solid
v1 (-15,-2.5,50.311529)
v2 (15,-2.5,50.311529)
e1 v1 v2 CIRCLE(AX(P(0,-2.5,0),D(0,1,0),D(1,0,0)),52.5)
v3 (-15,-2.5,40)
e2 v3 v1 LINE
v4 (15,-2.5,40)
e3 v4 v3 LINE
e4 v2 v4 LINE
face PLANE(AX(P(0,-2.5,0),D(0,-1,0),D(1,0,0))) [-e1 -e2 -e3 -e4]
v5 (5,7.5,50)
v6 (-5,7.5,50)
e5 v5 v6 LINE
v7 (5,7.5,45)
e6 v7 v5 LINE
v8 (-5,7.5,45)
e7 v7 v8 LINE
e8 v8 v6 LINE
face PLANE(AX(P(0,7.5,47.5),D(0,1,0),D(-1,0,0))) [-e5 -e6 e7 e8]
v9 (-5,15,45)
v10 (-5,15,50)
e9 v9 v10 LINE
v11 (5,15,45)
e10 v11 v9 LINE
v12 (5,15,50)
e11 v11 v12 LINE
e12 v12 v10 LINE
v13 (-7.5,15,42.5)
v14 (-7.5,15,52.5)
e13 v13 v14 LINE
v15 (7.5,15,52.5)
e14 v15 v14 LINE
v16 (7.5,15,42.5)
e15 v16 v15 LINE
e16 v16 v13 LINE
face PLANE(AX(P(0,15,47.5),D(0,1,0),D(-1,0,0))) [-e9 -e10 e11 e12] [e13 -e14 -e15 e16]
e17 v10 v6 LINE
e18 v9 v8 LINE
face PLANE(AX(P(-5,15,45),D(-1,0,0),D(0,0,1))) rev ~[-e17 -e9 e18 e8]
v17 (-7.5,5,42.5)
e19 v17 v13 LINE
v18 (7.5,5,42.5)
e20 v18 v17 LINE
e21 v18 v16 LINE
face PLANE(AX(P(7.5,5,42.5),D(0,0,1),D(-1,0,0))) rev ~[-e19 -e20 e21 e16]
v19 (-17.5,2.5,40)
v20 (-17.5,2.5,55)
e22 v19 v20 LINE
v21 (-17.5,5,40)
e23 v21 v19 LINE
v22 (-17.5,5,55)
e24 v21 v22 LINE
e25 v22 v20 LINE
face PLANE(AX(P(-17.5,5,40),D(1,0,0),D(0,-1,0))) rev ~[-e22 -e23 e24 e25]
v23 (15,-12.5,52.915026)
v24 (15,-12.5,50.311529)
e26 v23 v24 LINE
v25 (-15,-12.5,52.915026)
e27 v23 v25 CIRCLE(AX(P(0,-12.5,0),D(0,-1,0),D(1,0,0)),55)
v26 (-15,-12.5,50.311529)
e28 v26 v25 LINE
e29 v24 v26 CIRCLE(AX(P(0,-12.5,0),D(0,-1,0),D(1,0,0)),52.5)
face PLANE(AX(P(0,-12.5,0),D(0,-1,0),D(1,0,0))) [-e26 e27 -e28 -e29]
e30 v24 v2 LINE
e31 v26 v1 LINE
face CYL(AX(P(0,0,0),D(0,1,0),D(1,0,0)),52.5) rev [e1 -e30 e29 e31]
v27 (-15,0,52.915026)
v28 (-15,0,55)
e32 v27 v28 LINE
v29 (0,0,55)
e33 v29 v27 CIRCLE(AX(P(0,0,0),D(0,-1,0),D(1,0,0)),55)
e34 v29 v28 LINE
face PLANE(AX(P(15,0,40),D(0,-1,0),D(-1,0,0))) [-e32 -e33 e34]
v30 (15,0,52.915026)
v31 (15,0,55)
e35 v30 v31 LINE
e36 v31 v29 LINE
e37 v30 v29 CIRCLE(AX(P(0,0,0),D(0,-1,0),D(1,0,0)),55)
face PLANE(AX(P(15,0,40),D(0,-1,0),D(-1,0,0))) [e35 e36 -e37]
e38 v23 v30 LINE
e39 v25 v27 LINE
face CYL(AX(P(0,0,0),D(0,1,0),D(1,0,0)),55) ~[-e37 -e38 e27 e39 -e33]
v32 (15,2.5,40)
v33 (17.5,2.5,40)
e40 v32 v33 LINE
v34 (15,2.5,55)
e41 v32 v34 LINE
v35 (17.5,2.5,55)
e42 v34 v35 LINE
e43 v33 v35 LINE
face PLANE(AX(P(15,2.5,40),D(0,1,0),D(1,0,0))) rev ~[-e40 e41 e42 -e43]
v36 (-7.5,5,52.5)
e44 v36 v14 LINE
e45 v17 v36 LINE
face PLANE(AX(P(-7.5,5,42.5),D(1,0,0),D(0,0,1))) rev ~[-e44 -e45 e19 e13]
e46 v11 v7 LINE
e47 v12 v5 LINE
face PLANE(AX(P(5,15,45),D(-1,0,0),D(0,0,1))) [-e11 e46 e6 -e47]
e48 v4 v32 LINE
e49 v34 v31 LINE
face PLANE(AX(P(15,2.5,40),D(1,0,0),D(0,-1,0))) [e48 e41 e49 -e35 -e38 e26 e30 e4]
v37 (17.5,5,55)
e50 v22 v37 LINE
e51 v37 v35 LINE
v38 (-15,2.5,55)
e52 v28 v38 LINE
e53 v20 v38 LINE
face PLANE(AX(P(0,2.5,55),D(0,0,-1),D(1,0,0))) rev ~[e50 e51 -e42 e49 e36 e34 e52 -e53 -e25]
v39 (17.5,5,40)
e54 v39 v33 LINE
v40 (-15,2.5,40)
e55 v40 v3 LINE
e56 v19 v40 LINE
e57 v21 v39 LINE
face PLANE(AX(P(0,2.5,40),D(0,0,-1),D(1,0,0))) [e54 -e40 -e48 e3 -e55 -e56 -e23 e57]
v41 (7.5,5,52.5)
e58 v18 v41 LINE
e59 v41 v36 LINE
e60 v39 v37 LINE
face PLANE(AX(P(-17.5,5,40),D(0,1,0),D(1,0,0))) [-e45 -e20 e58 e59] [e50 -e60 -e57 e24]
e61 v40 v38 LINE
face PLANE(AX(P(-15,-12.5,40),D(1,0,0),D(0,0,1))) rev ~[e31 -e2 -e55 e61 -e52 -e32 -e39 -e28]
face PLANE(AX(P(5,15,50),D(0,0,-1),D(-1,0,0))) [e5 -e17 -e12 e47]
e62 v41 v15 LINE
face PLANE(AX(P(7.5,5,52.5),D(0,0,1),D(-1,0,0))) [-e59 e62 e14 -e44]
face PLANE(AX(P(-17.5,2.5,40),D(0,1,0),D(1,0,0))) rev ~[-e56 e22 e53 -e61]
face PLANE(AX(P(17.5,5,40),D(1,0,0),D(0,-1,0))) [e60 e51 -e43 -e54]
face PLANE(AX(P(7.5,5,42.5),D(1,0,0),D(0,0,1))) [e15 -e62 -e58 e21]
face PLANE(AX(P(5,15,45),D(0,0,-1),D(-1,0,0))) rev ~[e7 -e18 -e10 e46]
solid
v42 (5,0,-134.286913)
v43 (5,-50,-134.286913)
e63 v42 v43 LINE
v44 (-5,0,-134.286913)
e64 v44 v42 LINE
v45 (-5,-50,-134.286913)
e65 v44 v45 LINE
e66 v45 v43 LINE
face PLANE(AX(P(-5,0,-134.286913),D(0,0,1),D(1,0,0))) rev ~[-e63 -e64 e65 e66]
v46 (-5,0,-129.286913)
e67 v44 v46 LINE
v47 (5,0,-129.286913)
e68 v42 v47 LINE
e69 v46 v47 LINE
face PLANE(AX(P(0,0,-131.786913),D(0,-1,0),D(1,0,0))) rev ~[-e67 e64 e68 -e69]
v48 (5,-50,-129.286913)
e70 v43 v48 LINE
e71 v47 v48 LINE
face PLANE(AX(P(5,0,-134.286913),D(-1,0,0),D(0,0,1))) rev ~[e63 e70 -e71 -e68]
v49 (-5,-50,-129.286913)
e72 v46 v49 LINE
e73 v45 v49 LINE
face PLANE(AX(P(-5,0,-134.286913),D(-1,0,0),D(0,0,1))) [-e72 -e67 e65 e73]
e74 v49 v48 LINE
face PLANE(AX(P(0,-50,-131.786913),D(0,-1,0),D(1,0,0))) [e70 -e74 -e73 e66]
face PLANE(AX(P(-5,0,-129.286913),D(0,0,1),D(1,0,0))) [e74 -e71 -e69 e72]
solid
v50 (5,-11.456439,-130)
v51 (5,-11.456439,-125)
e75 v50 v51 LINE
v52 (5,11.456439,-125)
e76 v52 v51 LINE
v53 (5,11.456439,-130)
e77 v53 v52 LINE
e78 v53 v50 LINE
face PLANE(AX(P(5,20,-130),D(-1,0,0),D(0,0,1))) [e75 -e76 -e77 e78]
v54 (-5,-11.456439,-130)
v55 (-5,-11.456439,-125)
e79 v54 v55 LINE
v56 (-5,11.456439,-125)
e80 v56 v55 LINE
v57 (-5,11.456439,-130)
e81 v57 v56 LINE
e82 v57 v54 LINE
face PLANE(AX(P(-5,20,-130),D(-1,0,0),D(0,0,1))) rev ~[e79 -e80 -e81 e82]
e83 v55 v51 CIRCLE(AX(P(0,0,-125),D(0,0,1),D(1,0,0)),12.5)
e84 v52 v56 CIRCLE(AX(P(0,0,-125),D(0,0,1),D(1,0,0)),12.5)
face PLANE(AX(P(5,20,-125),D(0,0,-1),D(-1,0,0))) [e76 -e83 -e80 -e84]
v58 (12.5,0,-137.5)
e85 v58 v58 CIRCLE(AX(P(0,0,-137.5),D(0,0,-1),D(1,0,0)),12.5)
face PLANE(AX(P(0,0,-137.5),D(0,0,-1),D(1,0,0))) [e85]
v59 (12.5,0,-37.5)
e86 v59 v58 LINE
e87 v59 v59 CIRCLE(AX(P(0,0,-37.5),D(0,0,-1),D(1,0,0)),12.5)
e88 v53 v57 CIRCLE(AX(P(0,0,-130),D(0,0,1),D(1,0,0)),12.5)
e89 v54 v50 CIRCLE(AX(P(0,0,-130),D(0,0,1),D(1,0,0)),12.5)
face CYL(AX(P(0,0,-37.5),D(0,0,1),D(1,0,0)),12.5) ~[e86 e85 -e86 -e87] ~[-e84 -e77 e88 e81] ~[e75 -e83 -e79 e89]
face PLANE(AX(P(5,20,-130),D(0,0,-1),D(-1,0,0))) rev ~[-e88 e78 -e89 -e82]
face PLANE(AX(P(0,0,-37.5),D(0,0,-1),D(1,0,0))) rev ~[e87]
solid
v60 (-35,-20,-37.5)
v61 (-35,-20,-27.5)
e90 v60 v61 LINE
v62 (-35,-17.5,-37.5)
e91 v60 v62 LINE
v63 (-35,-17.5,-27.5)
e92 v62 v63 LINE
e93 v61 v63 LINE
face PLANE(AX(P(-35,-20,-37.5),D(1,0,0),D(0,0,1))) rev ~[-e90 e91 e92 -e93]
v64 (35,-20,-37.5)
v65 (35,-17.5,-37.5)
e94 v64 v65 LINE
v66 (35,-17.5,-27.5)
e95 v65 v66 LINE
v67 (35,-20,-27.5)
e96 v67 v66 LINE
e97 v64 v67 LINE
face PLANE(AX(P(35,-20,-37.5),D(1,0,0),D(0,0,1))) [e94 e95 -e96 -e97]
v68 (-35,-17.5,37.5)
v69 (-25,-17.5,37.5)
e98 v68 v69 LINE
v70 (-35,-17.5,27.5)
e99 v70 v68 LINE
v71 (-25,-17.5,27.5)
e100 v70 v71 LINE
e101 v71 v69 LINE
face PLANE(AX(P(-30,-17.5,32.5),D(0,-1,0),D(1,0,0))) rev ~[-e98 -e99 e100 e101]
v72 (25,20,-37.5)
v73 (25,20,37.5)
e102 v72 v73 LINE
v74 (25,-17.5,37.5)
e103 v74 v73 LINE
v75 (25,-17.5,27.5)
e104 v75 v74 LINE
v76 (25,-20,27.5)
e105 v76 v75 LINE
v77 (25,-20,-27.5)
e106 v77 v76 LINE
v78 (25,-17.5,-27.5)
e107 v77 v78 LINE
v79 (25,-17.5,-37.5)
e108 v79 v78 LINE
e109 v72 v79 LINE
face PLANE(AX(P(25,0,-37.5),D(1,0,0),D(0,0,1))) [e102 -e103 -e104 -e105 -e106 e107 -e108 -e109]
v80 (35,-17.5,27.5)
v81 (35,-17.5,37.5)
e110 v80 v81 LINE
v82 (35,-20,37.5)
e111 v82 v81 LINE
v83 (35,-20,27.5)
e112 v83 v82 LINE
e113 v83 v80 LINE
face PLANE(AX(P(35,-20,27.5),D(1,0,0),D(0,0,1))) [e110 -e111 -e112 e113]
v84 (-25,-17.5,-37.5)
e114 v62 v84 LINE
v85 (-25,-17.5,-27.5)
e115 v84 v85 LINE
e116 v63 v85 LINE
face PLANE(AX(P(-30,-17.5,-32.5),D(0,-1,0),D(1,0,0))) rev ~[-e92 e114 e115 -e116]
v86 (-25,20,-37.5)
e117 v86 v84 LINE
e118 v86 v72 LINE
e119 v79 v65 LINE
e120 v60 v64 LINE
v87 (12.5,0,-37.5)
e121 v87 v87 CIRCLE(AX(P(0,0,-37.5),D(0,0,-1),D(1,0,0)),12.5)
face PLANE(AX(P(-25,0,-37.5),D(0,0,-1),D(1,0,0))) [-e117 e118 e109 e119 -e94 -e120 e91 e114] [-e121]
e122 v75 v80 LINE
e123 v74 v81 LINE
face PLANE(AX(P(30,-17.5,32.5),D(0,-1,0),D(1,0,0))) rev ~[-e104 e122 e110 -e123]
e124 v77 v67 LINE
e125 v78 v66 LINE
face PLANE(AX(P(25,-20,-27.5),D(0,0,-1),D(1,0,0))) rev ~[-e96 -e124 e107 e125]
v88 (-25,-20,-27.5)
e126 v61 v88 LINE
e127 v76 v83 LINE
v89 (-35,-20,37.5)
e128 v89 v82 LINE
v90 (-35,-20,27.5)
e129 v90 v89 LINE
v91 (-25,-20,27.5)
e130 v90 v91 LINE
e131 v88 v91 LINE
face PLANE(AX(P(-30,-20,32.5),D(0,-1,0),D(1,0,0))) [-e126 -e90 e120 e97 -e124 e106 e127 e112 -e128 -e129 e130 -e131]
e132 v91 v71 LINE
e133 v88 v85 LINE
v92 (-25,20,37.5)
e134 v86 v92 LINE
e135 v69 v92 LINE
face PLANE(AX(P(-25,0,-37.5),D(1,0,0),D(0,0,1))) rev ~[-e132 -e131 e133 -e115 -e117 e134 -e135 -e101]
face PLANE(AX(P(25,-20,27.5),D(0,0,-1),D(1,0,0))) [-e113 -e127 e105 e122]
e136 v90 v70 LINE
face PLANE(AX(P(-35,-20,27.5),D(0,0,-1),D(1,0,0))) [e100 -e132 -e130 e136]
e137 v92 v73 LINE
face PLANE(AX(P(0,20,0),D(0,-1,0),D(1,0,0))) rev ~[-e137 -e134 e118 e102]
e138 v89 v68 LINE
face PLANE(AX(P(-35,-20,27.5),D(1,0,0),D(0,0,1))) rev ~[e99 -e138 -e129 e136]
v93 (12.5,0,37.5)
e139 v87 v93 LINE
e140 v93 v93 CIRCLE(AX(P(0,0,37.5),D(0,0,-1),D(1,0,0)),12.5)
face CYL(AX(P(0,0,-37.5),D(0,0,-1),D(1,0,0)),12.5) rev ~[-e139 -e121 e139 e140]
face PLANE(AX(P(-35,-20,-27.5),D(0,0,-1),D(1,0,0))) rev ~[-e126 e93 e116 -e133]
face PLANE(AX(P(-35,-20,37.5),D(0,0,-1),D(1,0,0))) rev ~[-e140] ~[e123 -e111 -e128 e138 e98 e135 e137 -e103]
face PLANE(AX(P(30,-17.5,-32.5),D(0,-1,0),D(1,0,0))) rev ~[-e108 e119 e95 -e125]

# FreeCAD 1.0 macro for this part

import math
import FreeCAD as App
import Part
import Sketcher

V = App.Vector
Q = App.Units.Quantity


def faces_at(feature, points):
    """Names of the faces that lie closest to the given points."""
    faces = feature.Shape.Faces
    near = lambda p: min(range(len(faces)), key=lambda i: faces[i].distToShape(Part.Vertex(*p))[0])
    return sorted({f"Face{near(p) + 1}" for p in points})


def add_polygon(sketch, points):
    """Adds a closed chain of lines whose ends are joined by coincident constraints."""
    first, n = sketch.GeometryCount, len(points)
    for a, b in zip(points, points[1:] + points[:1]):
        sketch.addGeometry(Part.LineSegment(App.Vector(*a, 0), App.Vector(*b, 0)), False)
    for i in range(n):
        sketch.addConstraint(Sketcher.Constraint("Coincident", first + i, 2, first + (i + 1) % n, 1))

doc = App.newDocument("Part")
body = doc.addObject("PartDesign::Body", "Body")

# Sketch on XZ plane
sketch1 = body.newObject("Sketcher::SketchObject", "Sketch")
sketch1.AttachmentSupport = (doc.getObject("XZ_Plane"), [""])
sketch1.MapMode = "FlatFace"
sketch1.addGeometry(Part.Circle(V(0, 0, 0), V(0, 0, 1), 55), False)
sketch1.addConstraint([
    Sketcher.Constraint("Coincident", 0, 3, -1, 1),
    Sketcher.Constraint("Diameter", 0, Q("110 mm")),
])
pad1 = body.newObject("PartDesign::Pad", "Pad")
pad1.Profile = sketch1
pad1.Length = 12.5
doc.recompute()

thickness = body.newObject("PartDesign::Thickness", "Thickness")
thickness.Base = (pad1, faces_at(pad1, [(0, -12.5, 0)]))
thickness.Value = 2.5
thickness.Reversed = True
thickness.Join = "Arc"

# Sketch on XZ plane
sketch2 = body.newObject("Sketcher::SketchObject", "Sketch001")
sketch2.AttachmentSupport = (doc.getObject("XZ_Plane"), [""])
sketch2.MapMode = "FlatFace"
sketch2.AttachmentOffset = App.Placement(V(0, 0, 12.5), App.Rotation())
sketch2.addGeometry([
    Part.LineSegment(V(-15, 40, 0), V(-15, 52.915026, 0)),  # 0
    Part.ArcOfCircle(Part.Circle(V(0, 0, 0), V(0, 0, 1), 55), math.radians(105.82662), math.radians(270)),  # 1
    Part.ArcOfCircle(Part.Circle(V(0, 0, 0), V(0, 0, 1), 55), math.radians(-90), math.radians(0)),  # 2
    Part.ArcOfCircle(Part.Circle(V(0, 0, 0), V(0, 0, 1), 55), math.radians(0), math.radians(74.17338)),  # 3
    Part.LineSegment(V(15, 52.915026, 0), V(15, 40, 0)),  # 4
    Part.LineSegment(V(15, 40, 0), V(-15, 40, 0)),  # 5
], False)
sketch2.addConstraint([
    Sketcher.Constraint("Coincident", 0, 2, 1, 1),
    Sketcher.Constraint("Tangent", 1, 2, 2, 1),
    Sketcher.Constraint("Tangent", 2, 2, 3, 1),
    Sketcher.Constraint("Coincident", 3, 2, 4, 1),
    Sketcher.Constraint("Coincident", 4, 2, 5, 1),
    Sketcher.Constraint("Coincident", 5, 2, 0, 1),
    Sketcher.Constraint("Vertical", 0),
    Sketcher.Constraint("Vertical", 4),
    Sketcher.Constraint("Horizontal", 5),
    Sketcher.Constraint("Coincident", 1, 3, -1, 1),
    Sketcher.Constraint("Coincident", 3, 3, -1, 1),
    Sketcher.Constraint("PointOnObject", 1, 2, -2),
    Sketcher.Constraint("PointOnObject", 2, 2, -1),
    Sketcher.Constraint("Horizontal", 0, 2, 3, 2),
    Sketcher.Constraint("Radius", 1, Q("55 mm")),
    Sketcher.Constraint("DistanceX", 5, 2, 5, 1, Q("30 mm")),
    Sketcher.Constraint("DistanceY", -1, 1, 4, 2, Q("40 mm")),
])
pocket1 = body.newObject("PartDesign::Pocket", "Pocket")
pocket1.Profile = sketch2
pocket1.Length = 25

# Sketch on XY plane
sketch3 = body.newObject("Sketcher::SketchObject", "Sketch002")
sketch3.AttachmentSupport = (doc.getObject("XY_Plane"), [""])
sketch3.MapMode = "FlatFace"
sketch3.AttachmentOffset = App.Placement(V(0, 0, 40), App.Rotation())
add_polygon(sketch3, [(15, 0), (-15, 0), (-15, 2.5), (-17.5, 2.5), (-17.5, 5), (17.5, 5), (17.5, 2.5), (15, 2.5)])  # lines 0-7
sketch3.addConstraint([
    Sketcher.Constraint("Horizontal", 0),
    Sketcher.Constraint("Vertical", 1),
    Sketcher.Constraint("Horizontal", 2),
    Sketcher.Constraint("Vertical", 3),
    Sketcher.Constraint("Horizontal", 4),
    Sketcher.Constraint("Vertical", 5),
    Sketcher.Constraint("Horizontal", 6),
    Sketcher.Constraint("Vertical", 7),
    Sketcher.Constraint("Symmetric", 0, 2, 7, 2, -1, 1),
    Sketcher.Constraint("Symmetric", 2, 2, 5, 2, -2),
    Sketcher.Constraint("Equal", 6, 1),
    Sketcher.Constraint("Equal", 1, 3),
    Sketcher.Constraint("DistanceX", 0, 2, 0, 1, Q("30 mm")),
    Sketcher.Constraint("DistanceX", 4, 1, 4, 2, Q("35 mm")),
])
pad2 = body.newObject("PartDesign::Pad", "Pad001")
pad2.Profile = sketch3
pad2.Length = 15

# Sketch on XZ plane
sketch4 = body.newObject("Sketcher::SketchObject", "Sketch003")
sketch4.AttachmentSupport = (doc.getObject("XZ_Plane"), [""])
sketch4.MapMode = "FlatFace"
sketch4.AttachmentOffset = App.Placement(V(0, 0, -5), App.Rotation())
add_polygon(sketch4, [(7.5, 52.5), (7.5, 42.5), (-7.5, 42.5), (-7.5, 52.5)])  # lines 0-3
sketch4.addConstraint([
    Sketcher.Constraint("Vertical", 0),
    Sketcher.Constraint("Horizontal", 1),
    Sketcher.Constraint("Vertical", 2),
    Sketcher.Constraint("Horizontal", 3),
    Sketcher.Constraint("DistanceX", 1, 2, 1, 1, Q("15 mm")),
    Sketcher.Constraint("DistanceY", 0, 2, 0, 1, Q("10 mm")),
    Sketcher.Constraint("DistanceX", -1, 1, 0, 2, Q("7.5 mm")),
    Sketcher.Constraint("DistanceY", -1, 1, 0, 2, Q("42.5 mm")),
])
pad3 = body.newObject("PartDesign::Pad", "Pad002")
pad3.Profile = sketch4
pad3.Length = 10
pad3.Reversed = True

# Sketch on XZ plane
sketch5 = body.newObject("Sketcher::SketchObject", "Sketch004")
sketch5.AttachmentSupport = (doc.getObject("XZ_Plane"), [""])
sketch5.MapMode = "FlatFace"
sketch5.AttachmentOffset = App.Placement(V(0, 0, -15), App.Rotation())
add_polygon(sketch5, [(5, 50), (5, 45), (-5, 45), (-5, 50)])  # lines 0-3
sketch5.addConstraint([
    Sketcher.Constraint("Vertical", 0),
    Sketcher.Constraint("Horizontal", 1),
    Sketcher.Constraint("Vertical", 2),
    Sketcher.Constraint("Horizontal", 3),
    Sketcher.Constraint("DistanceX", 1, 2, 1, 1, Q("10 mm")),
    Sketcher.Constraint("DistanceY", 0, 2, 0, 1, Q("5 mm")),
    Sketcher.Constraint("DistanceX", -1, 1, 0, 2, Q("5 mm")),
    Sketcher.Constraint("DistanceY", -1, 1, 0, 2, Q("45 mm")),
])
pocket2 = body.newObject("PartDesign::Pocket", "Pocket001")
pocket2.Profile = sketch5
pocket2.Length = 7.5
pocket2.Reversed = True
body2 = doc.addObject("PartDesign::Body", "Body001")

# Sketch on XZ plane
sketch6 = body2.newObject("Sketcher::SketchObject", "Sketch005")
sketch6.AttachmentSupport = (doc.getObject("XZ_Plane001"), [""])
sketch6.MapMode = "FlatFace"
add_polygon(sketch6, [(-25, 37.5), (-25, -37.5), (25, -37.5), (25, 37.5)])  # lines 0-3
sketch6.addConstraint([
    Sketcher.Constraint("Vertical", 0),
    Sketcher.Constraint("Horizontal", 1),
    Sketcher.Constraint("Vertical", 2),
    Sketcher.Constraint("Horizontal", 3),
    Sketcher.Constraint("Symmetric", 0, 2, 2, 2, -1, 1),
    Sketcher.Constraint("DistanceX", 1, 1, 1, 2, Q("50 mm")),
    Sketcher.Constraint("DistanceY", 0, 2, 0, 1, Q("75 mm")),
])
pad4 = body2.newObject("PartDesign::Pad", "Pad003")
pad4.Profile = sketch6
pad4.Length = 40
pad4.Midplane = True

# Sketch on XY plane
sketch7 = body2.newObject("Sketcher::SketchObject", "Sketch006")
sketch7.AttachmentSupport = (doc.getObject("XY_Plane001"), [""])
sketch7.MapMode = "FlatFace"
sketch7.AttachmentOffset = App.Placement(V(0, 0, -37.5), App.Rotation())
sketch7.addGeometry(Part.Circle(V(0, 0, 0), V(0, 0, 1), 12.5), False)
sketch7.addConstraint([
    Sketcher.Constraint("Coincident", 0, 3, -1, 1),
    Sketcher.Constraint("Diameter", 0, Q("25 mm")),
])
pocket3 = body2.newObject("PartDesign::Pocket", "Pocket002")
pocket3.Profile = sketch7
pocket3.Length = 75
pocket3.Reversed = True

# Sketch on XZ plane
sketch8 = body2.newObject("Sketcher::SketchObject", "Sketch007")
sketch8.AttachmentSupport = (doc.getObject("XZ_Plane001"), [""])
sketch8.MapMode = "FlatFace"
sketch8.AttachmentOffset = App.Placement(V(0, 0, 20), App.Rotation())
add_polygon(sketch8, [(-35, 37.5), (-35, 27.5), (-25, 27.5), (-25, 37.5)])  # lines 0-3
add_polygon(sketch8, [(25, 37.5), (25, 27.5), (35, 27.5), (35, 37.5)])  # lines 4-7
add_polygon(sketch8, [(-35, -27.5), (-35, -37.5), (-25, -37.5), (-25, -27.5)])  # lines 8-11
add_polygon(sketch8, [(25, -27.5), (25, -37.5), (35, -37.5), (35, -27.5)])  # lines 12-15
sketch8.addConstraint([
    Sketcher.Constraint("Vertical", 0),
    Sketcher.Constraint("Horizontal", 1),
    Sketcher.Constraint("Vertical", 2),
    Sketcher.Constraint("Horizontal", 3),
    Sketcher.Constraint("Vertical", 4),
    Sketcher.Constraint("Horizontal", 5),
    Sketcher.Constraint("Vertical", 6),
    Sketcher.Constraint("Horizontal", 7),
    Sketcher.Constraint("Vertical", 8),
    Sketcher.Constraint("Horizontal", 9),
    Sketcher.Constraint("Vertical", 10),
    Sketcher.Constraint("Horizontal", 11),
    Sketcher.Constraint("Vertical", 12),
    Sketcher.Constraint("Horizontal", 13),
    Sketcher.Constraint("Vertical", 14),
    Sketcher.Constraint("Horizontal", 15),
    Sketcher.Constraint("Symmetric", 6, 2, 8, 2, -1, 1),
    Sketcher.Constraint("Symmetric", 4, 2, 10, 2, -1, 1),
    Sketcher.Constraint("Symmetric", 2, 2, 12, 2, -1, 1),
    Sketcher.Constraint("Symmetric", 0, 2, 14, 2, -1, 1),
    Sketcher.Constraint("Symmetric", 1, 2, 4, 2, -2),
    Sketcher.Constraint("Symmetric", 3, 2, 6, 2, -2),
    Sketcher.Constraint("Equal", 15, 0),
    Sketcher.Constraint("DistanceX", 1, 1, 1, 2, Q("10 mm")),
    Sketcher.Constraint("DistanceX", 0, 2, -1, 1, Q("35 mm")),
    Sketcher.Constraint("DistanceY", 8, 2, 0, 2, Q("65 mm")),
])
pad5 = body2.newObject("PartDesign::Pad", "Pad004")
pad5.Profile = sketch8
pad5.Length = 2.5
pad5.Reversed = True
body3 = doc.addObject("PartDesign::Body", "Body002")

# Sketch on XY plane
sketch9 = body3.newObject("Sketcher::SketchObject", "Sketch008")
sketch9.AttachmentSupport = (doc.getObject("XY_Plane002"), [""])
sketch9.MapMode = "FlatFace"
sketch9.AttachmentOffset = App.Placement(V(0, 0, -37.5), App.Rotation())
sketch9.addGeometry(Part.Circle(V(0, 0, 0), V(0, 0, 1), 12.5), False)
sketch9.addConstraint([
    Sketcher.Constraint("Coincident", 0, 3, -1, 1),
    Sketcher.Constraint("Diameter", 0, Q("25 mm")),
])
pad6 = body3.newObject("PartDesign::Pad", "Pad005")
pad6.Profile = sketch9
pad6.Length = 100
pad6.Reversed = True

# Sketch on XZ plane
sketch10 = body3.newObject("Sketcher::SketchObject", "Sketch009")
sketch10.AttachmentSupport = (doc.getObject("XZ_Plane002"), [""])
sketch10.MapMode = "FlatFace"
sketch10.AttachmentOffset = App.Placement(V(0, 0, -20), App.Rotation())
add_polygon(sketch10, [(5, -125), (5, -130), (-5, -130), (-5, -125)])  # lines 0-3
sketch10.addConstraint([
    Sketcher.Constraint("Vertical", 0),
    Sketcher.Constraint("Horizontal", 1),
    Sketcher.Constraint("Vertical", 2),
    Sketcher.Constraint("Horizontal", 3),
    Sketcher.Constraint("DistanceX", 1, 2, 1, 1, Q("10 mm")),
    Sketcher.Constraint("DistanceY", 0, 2, 0, 1, Q("5 mm")),
    Sketcher.Constraint("DistanceX", -1, 1, 0, 2, Q("5 mm")),
    Sketcher.Constraint("DistanceY", 0, 2, -1, 1, Q("130 mm")),
])
pocket4 = body3.newObject("PartDesign::Pocket", "Pocket003")
pocket4.Profile = sketch10
pocket4.Length = 40
pocket4.Reversed = True
body4 = doc.addObject("PartDesign::Body", "Body003")

# Sketch on XZ plane
sketch11 = body4.newObject("Sketcher::SketchObject", "Sketch010")
sketch11.AttachmentSupport = (doc.getObject("XZ_Plane003"), [""])
sketch11.MapMode = "FlatFace"
add_polygon(sketch11, [(-5, -129.286913), (-5, -134.286913), (5, -134.286913), (5, -129.286913)])  # lines 0-3
sketch11.addConstraint([
    Sketcher.Constraint("Vertical", 0),
    Sketcher.Constraint("Horizontal", 1),
    Sketcher.Constraint("Vertical", 2),
    Sketcher.Constraint("Horizontal", 3),
    Sketcher.Constraint("DistanceX", 1, 1, 1, 2, Q("10 mm")),
    Sketcher.Constraint("DistanceY", 0, 2, 0, 1, Q("5 mm")),
    Sketcher.Constraint("DistanceX", 0, 2, -1, 1, Q("5 mm")),
    Sketcher.Constraint("DistanceY", 0, 2, -1, 1, Q("134.286913 mm")),
])
pad7 = body4.newObject("PartDesign::Pad", "Pad006")
pad7.Profile = sketch11
pad7.Length = 50

doc.recompute()
